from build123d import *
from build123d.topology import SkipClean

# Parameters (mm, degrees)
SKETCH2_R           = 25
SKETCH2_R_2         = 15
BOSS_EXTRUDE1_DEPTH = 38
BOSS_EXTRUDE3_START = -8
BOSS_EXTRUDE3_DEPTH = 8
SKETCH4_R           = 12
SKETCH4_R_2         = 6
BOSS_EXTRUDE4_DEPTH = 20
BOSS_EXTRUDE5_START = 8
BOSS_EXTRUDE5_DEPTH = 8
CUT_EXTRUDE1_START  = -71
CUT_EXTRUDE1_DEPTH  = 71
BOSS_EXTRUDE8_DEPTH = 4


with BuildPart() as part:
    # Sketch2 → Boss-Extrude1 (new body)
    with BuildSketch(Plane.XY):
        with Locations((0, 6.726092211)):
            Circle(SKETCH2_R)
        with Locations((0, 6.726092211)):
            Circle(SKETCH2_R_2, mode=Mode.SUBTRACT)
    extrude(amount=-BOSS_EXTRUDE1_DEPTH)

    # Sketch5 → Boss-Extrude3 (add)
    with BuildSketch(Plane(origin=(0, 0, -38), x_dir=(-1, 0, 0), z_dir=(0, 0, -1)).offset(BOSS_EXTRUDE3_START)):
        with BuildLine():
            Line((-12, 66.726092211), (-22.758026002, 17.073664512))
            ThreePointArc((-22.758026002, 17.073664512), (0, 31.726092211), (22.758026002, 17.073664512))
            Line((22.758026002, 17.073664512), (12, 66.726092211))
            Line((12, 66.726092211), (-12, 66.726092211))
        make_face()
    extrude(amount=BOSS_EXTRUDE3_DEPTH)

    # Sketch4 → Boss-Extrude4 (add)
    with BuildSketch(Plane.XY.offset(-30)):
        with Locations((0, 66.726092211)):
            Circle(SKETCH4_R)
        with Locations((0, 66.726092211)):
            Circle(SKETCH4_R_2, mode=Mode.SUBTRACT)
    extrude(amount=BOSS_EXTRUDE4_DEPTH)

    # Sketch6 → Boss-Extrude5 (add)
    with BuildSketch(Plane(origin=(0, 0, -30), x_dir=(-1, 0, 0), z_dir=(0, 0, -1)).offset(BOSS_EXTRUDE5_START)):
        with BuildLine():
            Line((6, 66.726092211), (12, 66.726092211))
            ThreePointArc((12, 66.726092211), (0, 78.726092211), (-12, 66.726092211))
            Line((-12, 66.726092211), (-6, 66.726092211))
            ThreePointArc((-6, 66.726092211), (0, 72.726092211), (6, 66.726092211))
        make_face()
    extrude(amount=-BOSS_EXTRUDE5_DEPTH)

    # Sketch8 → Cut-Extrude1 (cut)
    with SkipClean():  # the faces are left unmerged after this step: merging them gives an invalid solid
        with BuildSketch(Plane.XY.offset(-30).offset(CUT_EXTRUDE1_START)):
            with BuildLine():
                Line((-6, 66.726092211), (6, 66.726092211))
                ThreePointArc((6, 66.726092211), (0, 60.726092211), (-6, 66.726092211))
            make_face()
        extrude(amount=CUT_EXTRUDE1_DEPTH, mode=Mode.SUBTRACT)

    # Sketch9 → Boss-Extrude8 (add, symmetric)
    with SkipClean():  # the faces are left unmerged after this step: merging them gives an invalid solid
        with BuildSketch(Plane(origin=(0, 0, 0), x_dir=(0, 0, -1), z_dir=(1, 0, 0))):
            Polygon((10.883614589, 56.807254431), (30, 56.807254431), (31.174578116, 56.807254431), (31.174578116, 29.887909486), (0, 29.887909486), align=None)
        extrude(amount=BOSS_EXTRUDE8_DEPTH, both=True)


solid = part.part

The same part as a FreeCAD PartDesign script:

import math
import FreeCAD as App
import Part
import Sketcher
Q = App.Units.Quantity


def add_polygon(sketch, points):
    """Adds a closed chain of lines whose ends are joined by coincident constraints."""
    first, n = sketch.GeometryCount, len(points)
    for a, b in zip(points, points[1:] + points[:1]):
        sketch.addGeometry(Part.LineSegment(App.Vector(*a, 0), App.Vector(*b, 0)), False)
    for i in range(n):
        sketch.addConstraint(Sketcher.Constraint("Coincident", first + i, 2, first + (i + 1) % n, 1))

doc = App.newDocument("Part")
body = doc.addObject("PartDesign::Body", "Body")

sketch1 = doc.addObject("Sketcher::SketchObject", "Sketch")
body.addObject(sketch1)
sketch1.AttachmentSupport = (doc.XY_Plane, [""])
sketch1.MapMode = "FlatFace"
sketch1.addGeometry([
    Part.Circle(App.Vector(0, 6.726092, 0), App.Vector(0, 0, 1), 25),
    Part.Circle(App.Vector(0, 6.726092, 0), App.Vector(0, 0, 1), 15),
], False)
sketch1.addConstraint([
    Sketcher.Constraint("Coincident", 1, 3, 0, 3),
    Sketcher.Constraint("PointOnObject", 0, 3, -2),
    Sketcher.Constraint("Diameter", 0, Q("50 mm")),
    Sketcher.Constraint("Diameter", 1, Q("30 mm")),
    Sketcher.Constraint("DistanceY", -1, 1, 0, 3, Q("6.726092 mm")),
])
pad1 = doc.addObject("PartDesign::Pad", "Pad")
body.addObject(pad1)
pad1.Profile = sketch1
pad1.Length = 38
pad1.Reversed = True

sketch2 = doc.addObject("Sketcher::SketchObject", "Sketch001")
body.addObject(sketch2)
sketch2.AttachmentSupport = (doc.XY_Plane, [""])
sketch2.MapMode = "FlatFace"
sketch2.AttachmentOffset = App.Placement(App.Vector(0, 0, -30), App.Rotation())
sketch2.addGeometry([
    Part.LineSegment(App.Vector(12, 66.726092, 0), App.Vector(22.758026, 17.073665, 0)),
    Part.ArcOfCircle(Part.Circle(App.Vector(0, 6.726092, 0), App.Vector(0, 0, 1), 25), math.radians(24.450245), math.radians(155.549755)),
    Part.LineSegment(App.Vector(-22.758026, 17.073665, 0), App.Vector(-12, 66.726092, 0)),
    Part.LineSegment(App.Vector(-12, 66.726092, 0), App.Vector(12, 66.726092, 0)),
], False)
sketch2.addConstraint([
    Sketcher.Constraint("Coincident", 0, 2, 1, 1),
    Sketcher.Constraint("Coincident", 1, 2, 2, 1),
    Sketcher.Constraint("Coincident", 2, 2, 3, 1),
    Sketcher.Constraint("Coincident", 3, 2, 0, 1),
    Sketcher.Constraint("Horizontal", 3),
    Sketcher.Constraint("Symmetric", 0, 2, 1, 2, -2),
    Sketcher.Constraint("Equal", 0, 2),
    Sketcher.Constraint("Radius", 1, Q("25 mm")),
    Sketcher.Constraint("DistanceX", 3, 1, 3, 2, Q("24 mm")),
    Sketcher.Constraint("DistanceY", 1, 3, 2, 2, Q("60 mm")),
    Sketcher.Constraint("Distance", 0, Q("50.804515 mm")),
    Sketcher.Constraint("DistanceY", -1, 1, 1, 3, Q("6.726092 mm")),
])
pad2 = doc.addObject("PartDesign::Pad", "Pad001")
body.addObject(pad2)
pad2.Profile = sketch2
pad2.Length = 8
pad2.Reversed = True

sketch3 = doc.addObject("Sketcher::SketchObject", "Sketch002")
body.addObject(sketch3)
sketch3.AttachmentSupport = (doc.XY_Plane, [""])
sketch3.MapMode = "FlatFace"
sketch3.AttachmentOffset = App.Placement(App.Vector(0, 0, -30), App.Rotation())
sketch3.addGeometry([
    Part.Circle(App.Vector(0, 66.726092, 0), App.Vector(0, 0, 1), 12),
    Part.Circle(App.Vector(0, 66.726092, 0), App.Vector(0, 0, 1), 6),
], False)
sketch3.addConstraint([
    Sketcher.Constraint("Coincident", 1, 3, 0, 3),
    Sketcher.Constraint("PointOnObject", 0, 3, -2),
    Sketcher.Constraint("Diameter", 0, Q("24 mm")),
    Sketcher.Constraint("Diameter", 1, Q("12 mm")),
    Sketcher.Constraint("DistanceY", -1, 1, 0, 3, Q("66.726092 mm")),
])
pad3 = doc.addObject("PartDesign::Pad", "Pad002")
body.addObject(pad3)
pad3.Profile = sketch3
pad3.Length = 20

sketch4 = doc.addObject("Sketcher::SketchObject", "Sketch003")
body.addObject(sketch4)
sketch4.AttachmentSupport = (doc.XY_Plane, [""])
sketch4.MapMode = "FlatFace"
sketch4.AttachmentOffset = App.Placement(App.Vector(0, 0, -38), App.Rotation())
sketch4.addGeometry([
    Part.LineSegment(App.Vector(-6, 66.726092, 0), App.Vector(-12, 66.726092, 0)),
    Part.ArcOfCircle(Part.Circle(App.Vector(0, 66.726092, 0), App.Vector(0, 0, 1), 12), math.radians(0), math.radians(180)),
    Part.LineSegment(App.Vector(12, 66.726092, 0), App.Vector(6, 66.726092, 0)),
    Part.ArcOfCircle(Part.Circle(App.Vector(0, 66.726092, 0), App.Vector(0, 0, 1), 6), math.radians(0), math.radians(180)),
], False)
sketch4.addConstraint([
    Sketcher.Constraint("Coincident", 0, 2, 1, 2),
    Sketcher.Constraint("Coincident", 1, 1, 2, 1),
    Sketcher.Constraint("Coincident", 2, 2, 3, 1),
    Sketcher.Constraint("Coincident", 3, 2, 0, 1),
    Sketcher.Constraint("Horizontal", 0),
    Sketcher.Constraint("Horizontal", 2),
    Sketcher.Constraint("Coincident", 3, 3, 1, 3),
    Sketcher.Constraint("Symmetric", 0, 2, 1, 1, -2),
    Sketcher.Constraint("Horizontal", 3, 3, 0, 2),
    Sketcher.Constraint("Radius", 1, Q("12 mm")),
    Sketcher.Constraint("Radius", 3, Q("6 mm")),
    Sketcher.Constraint("DistanceY", -1, 1, 1, 3, Q("66.726092 mm")),
])
pad4 = doc.addObject("PartDesign::Pad", "Pad003")
body.addObject(pad4)
pad4.Profile = sketch4
pad4.Length = 8

sketch5 = doc.addObject("Sketcher::SketchObject", "Sketch004")
body.addObject(sketch5)
sketch5.AttachmentSupport = (doc.XY_Plane, [""])
sketch5.MapMode = "FlatFace"
sketch5.AttachmentOffset = App.Placement(App.Vector(0, 0, -101), App.Rotation())
sketch5.addGeometry([
    Part.LineSegment(App.Vector(6, 66.726092, 0), App.Vector(-6, 66.726092, 0)),
    Part.ArcOfCircle(Part.Circle(App.Vector(0, 66.726092, 0), App.Vector(0, 0, 1), 6), math.radians(180), math.radians(360)),
], False)
sketch5.addConstraint([
    Sketcher.Constraint("Coincident", 0, 1, 1, 2),
    Sketcher.Constraint("Coincident", 1, 1, 0, 2),
    Sketcher.Constraint("Horizontal", 0),
    Sketcher.Constraint("PointOnObject", 1, 3, -2),
    Sketcher.Constraint("Horizontal", 1, 3, 0, 1),
    Sketcher.Constraint("Radius", 1, Q("6 mm")),
    Sketcher.Constraint("DistanceY", -1, 1, 1, 3, Q("66.726092 mm")),
])
pocket1 = doc.addObject("PartDesign::Pocket", "Pocket")
body.addObject(pocket1)
pocket1.Profile = sketch5
pocket1.Length = 71
pocket1.Reversed = True

sketch6 = doc.addObject("Sketcher::SketchObject", "Sketch005")
body.addObject(sketch6)
sketch6.AttachmentSupport = (doc.YZ_Plane, [""])
sketch6.MapMode = "FlatFace"
add_polygon(sketch6, [(56.807254, -31.174578), (56.807254, -10.883615), (29.887909, 0), (29.887909, -31.174578)])
sketch6.addConstraint([
    Sketcher.Constraint("Vertical", 0),
    Sketcher.Constraint("Vertical", 2),
    Sketcher.Constraint("Horizontal", 3),
    Sketcher.Constraint("PointOnObject", 1, 2, -1),
    Sketcher.Constraint("DistanceY", 2, 2, 2, 1, Q("31.174578 mm")),
    Sketcher.Constraint("DistanceX", 3, 1, 3, 2, Q("26.919345 mm")),
    Sketcher.Constraint("DistanceY", 0, 1, 0, 2, Q("20.290964 mm")),
    Sketcher.Constraint("DistanceX", -1, 1, 1, 2, Q("29.887909 mm")),
])
pad5 = doc.addObject("PartDesign::Pad", "Pad004")
body.addObject(pad5)
pad5.Profile = sketch6
pad5.Length = 8
pad5.Midplane = True

doc.recompute()
